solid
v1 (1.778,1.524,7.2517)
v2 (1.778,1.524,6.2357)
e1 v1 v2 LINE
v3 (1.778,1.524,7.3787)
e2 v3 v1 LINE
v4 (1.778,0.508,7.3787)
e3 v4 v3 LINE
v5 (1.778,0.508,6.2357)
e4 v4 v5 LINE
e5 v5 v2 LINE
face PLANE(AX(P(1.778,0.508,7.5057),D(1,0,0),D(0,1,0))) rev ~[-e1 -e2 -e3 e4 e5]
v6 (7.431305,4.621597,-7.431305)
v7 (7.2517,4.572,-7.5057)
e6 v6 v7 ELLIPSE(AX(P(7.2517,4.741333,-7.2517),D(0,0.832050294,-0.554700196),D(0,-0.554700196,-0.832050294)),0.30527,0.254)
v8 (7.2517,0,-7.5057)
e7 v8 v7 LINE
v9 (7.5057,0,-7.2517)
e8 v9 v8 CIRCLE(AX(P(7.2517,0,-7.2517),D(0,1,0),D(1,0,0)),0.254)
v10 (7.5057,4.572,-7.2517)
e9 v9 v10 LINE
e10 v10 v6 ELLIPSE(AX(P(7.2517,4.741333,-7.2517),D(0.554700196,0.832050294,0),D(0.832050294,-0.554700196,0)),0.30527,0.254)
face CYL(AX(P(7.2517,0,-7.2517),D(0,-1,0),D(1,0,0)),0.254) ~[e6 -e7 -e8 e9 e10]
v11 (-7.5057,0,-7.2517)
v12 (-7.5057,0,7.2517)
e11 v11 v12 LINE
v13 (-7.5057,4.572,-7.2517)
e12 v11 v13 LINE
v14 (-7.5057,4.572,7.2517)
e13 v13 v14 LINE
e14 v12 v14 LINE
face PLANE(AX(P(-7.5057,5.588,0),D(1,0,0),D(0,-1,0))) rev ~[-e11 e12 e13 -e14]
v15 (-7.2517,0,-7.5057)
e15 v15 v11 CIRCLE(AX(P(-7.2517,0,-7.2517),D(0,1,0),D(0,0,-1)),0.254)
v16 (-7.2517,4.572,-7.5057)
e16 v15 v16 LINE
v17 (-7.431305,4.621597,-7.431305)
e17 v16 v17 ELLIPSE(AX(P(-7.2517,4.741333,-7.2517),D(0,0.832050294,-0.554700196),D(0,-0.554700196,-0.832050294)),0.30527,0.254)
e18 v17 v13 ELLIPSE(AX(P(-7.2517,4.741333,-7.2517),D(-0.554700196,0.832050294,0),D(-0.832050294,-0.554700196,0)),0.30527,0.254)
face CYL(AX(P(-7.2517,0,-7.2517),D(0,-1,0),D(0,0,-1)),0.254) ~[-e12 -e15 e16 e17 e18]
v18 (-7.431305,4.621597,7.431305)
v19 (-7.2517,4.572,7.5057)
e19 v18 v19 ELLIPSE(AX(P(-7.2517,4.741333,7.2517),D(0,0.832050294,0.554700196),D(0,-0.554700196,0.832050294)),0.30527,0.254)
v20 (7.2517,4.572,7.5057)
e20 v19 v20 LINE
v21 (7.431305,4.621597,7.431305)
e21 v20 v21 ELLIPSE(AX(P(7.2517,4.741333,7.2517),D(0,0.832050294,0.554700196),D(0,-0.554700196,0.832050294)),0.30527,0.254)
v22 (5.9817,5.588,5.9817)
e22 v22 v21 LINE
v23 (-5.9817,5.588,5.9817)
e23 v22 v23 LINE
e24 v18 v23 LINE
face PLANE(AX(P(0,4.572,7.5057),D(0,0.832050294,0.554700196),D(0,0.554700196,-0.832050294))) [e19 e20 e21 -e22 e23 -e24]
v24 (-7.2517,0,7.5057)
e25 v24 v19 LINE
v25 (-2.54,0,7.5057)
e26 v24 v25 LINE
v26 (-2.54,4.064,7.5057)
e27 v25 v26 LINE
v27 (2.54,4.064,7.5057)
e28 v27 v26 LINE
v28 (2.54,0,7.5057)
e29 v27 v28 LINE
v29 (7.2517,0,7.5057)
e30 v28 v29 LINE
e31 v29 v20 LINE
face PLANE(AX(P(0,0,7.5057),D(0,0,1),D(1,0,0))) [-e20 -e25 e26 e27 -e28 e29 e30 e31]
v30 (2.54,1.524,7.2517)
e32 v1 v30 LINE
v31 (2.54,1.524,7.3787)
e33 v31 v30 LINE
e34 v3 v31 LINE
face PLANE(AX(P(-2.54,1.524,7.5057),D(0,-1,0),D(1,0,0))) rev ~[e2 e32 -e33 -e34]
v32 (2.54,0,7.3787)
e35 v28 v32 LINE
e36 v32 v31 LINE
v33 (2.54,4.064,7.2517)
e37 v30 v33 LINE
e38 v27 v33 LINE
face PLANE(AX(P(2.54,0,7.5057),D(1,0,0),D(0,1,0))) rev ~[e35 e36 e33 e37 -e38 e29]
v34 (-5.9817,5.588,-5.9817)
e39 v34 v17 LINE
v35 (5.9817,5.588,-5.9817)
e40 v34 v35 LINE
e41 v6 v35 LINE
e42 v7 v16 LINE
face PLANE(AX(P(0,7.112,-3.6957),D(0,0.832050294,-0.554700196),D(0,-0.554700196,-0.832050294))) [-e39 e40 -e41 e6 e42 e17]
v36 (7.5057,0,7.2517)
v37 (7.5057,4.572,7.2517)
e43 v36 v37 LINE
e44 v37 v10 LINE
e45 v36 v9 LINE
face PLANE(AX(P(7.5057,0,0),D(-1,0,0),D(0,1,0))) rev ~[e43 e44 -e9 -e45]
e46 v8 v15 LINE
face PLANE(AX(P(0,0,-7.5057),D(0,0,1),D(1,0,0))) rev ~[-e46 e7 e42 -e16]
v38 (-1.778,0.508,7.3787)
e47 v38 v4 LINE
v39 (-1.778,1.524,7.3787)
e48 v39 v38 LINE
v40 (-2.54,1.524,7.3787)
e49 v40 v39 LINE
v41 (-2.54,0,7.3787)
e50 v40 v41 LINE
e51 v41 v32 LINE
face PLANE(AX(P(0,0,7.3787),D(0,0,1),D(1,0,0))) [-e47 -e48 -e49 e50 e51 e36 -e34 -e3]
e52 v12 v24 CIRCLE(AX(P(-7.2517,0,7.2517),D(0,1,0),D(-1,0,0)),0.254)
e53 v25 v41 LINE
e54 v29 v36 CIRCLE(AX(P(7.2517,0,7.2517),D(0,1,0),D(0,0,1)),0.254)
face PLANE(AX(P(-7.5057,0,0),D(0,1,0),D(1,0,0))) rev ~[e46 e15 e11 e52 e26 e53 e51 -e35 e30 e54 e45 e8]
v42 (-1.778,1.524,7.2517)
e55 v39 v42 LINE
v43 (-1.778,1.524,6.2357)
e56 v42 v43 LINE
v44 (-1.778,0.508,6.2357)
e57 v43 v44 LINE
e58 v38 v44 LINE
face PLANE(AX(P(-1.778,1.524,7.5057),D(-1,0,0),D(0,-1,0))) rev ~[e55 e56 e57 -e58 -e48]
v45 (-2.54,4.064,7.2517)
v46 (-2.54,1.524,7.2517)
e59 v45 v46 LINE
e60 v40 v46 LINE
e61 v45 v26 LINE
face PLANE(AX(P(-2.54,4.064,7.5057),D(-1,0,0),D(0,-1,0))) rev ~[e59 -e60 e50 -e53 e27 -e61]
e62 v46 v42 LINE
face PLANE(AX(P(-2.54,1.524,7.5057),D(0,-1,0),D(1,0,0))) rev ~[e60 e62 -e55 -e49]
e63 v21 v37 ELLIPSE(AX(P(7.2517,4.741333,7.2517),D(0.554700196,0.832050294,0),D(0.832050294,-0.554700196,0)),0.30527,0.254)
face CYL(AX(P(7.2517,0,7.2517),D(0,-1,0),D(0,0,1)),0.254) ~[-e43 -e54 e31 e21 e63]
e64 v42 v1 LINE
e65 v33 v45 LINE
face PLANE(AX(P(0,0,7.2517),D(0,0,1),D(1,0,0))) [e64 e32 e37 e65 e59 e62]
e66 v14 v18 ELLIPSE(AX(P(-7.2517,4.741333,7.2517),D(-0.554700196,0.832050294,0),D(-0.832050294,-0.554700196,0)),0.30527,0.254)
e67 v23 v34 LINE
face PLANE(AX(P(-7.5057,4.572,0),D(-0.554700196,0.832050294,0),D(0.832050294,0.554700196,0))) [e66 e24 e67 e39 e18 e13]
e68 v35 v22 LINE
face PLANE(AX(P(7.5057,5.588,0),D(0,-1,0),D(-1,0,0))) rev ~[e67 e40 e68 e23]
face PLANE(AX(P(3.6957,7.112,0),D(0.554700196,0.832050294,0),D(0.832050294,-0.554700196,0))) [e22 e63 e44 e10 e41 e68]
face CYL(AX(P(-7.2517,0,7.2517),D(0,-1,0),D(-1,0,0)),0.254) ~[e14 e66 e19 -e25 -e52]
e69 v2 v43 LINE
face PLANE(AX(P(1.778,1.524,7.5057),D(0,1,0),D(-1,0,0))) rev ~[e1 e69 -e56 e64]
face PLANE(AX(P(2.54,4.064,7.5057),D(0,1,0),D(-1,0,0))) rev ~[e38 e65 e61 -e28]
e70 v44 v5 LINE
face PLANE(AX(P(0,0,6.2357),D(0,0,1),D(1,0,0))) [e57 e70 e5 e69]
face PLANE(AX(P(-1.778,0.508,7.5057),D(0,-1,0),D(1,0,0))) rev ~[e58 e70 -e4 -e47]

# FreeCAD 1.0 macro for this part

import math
import FreeCAD as App
import Part
import Sketcher

V = App.Vector
Q = App.Units.Quantity


def add_polygon(sketch, points):
    """Adds a closed chain of lines whose ends are joined by coincident constraints."""
    first, n = sketch.GeometryCount, len(points)
    for a, b in zip(points, points[1:] + points[:1]):
        sketch.addGeometry(Part.LineSegment(App.Vector(*a, 0), App.Vector(*b, 0)), False)
    for i in range(n):
        sketch.addConstraint(Sketcher.Constraint("Coincident", first + i, 2, first + (i + 1) % n, 1))

doc = App.newDocument("Part")
body = doc.addObject("PartDesign::Body", "Body")

# Sketch on XY plane
sketch1 = body.newObject("Sketcher::SketchObject", "Sketch")
sketch1.AttachmentSupport = (doc.getObject("XY_Plane"), [""])
sketch1.MapMode = "FlatFace"
add_polygon(sketch1, [(-8, 6), (-8, 0), (8, 0), (8, 6)])  # lines 0-3
sketch1.addConstraint([
    Sketcher.Constraint("Vertical", 0),
    Sketcher.Constraint("Horizontal", 1),
    Sketcher.Constraint("Vertical", 2),
    Sketcher.Constraint("Horizontal", 3),
    Sketcher.Constraint("Symmetric", 0, 2, 1, 2, -1, 1),
    Sketcher.Constraint("DistanceY", 0, 2, 0, 1, Q("0.22 in")),
    Sketcher.Constraint("DistanceX", 1, 1, 1, 2, Q("0.591 in")),
])
pad1 = body.newObject("PartDesign::Pad", "Pad")
pad1.Profile = sketch1
pad1.Length = Q("0.591 in")
pad1.Midplane = True

# Sketch on XZ plane
sketch2 = body.newObject("Sketcher::SketchObject", "Sketch001")
sketch2.AttachmentSupport = (doc.getObject("XZ_Plane"), [""])
sketch2.MapMode = "FlatFace"
add_polygon(sketch2, [(-8.89, -8.89), (-8.89, 8.89), (8.89, 8.89), (8.89, -8.89)])  # lines 0-3
sketch2.addGeometry(Part.LineSegment(V(-7.51, 7.25, 0), V(-7.51, -7.25, 0)), False)  # 4
sketch2.addGeometry(Part.ArcOfCircle(Part.Circle(V(-7.25, -7.25, 0), V(0, 0, 1), 0.25), math.radians(180), math.radians(270)), False)  # 5
sketch2.addGeometry(Part.LineSegment(V(-7.25, -7.51, 0), V(7.25, -7.51, 0)), False)  # 6
sketch2.addGeometry(Part.ArcOfCircle(Part.Circle(V(7.25, -7.25, 0), V(0, 0, 1), 0.25), math.radians(-90), math.radians(0)), False)  # 7
sketch2.addGeometry(Part.LineSegment(V(7.51, -7.25, 0), V(7.51, 7.25, 0)), False)  # 8
sketch2.addGeometry(Part.ArcOfCircle(Part.Circle(V(7.25, 7.25, 0), V(0, 0, 1), 0.25), math.radians(0), math.radians(90)), False)  # 9
sketch2.addGeometry(Part.LineSegment(V(7.25, 7.51, 0), V(-7.25, 7.51, 0)), False)  # 10
sketch2.addGeometry(Part.ArcOfCircle(Part.Circle(V(-7.25, 7.25, 0), V(0, 0, 1), 0.25), math.radians(90), math.radians(180)), False)  # 11
sketch2.addConstraint([
    Sketcher.Constraint("Tangent", 4, 2, 5, 1),
    Sketcher.Constraint("Tangent", 5, 2, 6, 1),
    Sketcher.Constraint("Tangent", 6, 2, 7, 1),
    Sketcher.Constraint("Tangent", 7, 2, 8, 1),
    Sketcher.Constraint("Tangent", 8, 2, 9, 1),
    Sketcher.Constraint("Tangent", 9, 2, 10, 1),
    Sketcher.Constraint("Tangent", 10, 2, 11, 1),
    Sketcher.Constraint("Tangent", 11, 2, 4, 1),
    Sketcher.Constraint("Vertical", 0),
    Sketcher.Constraint("Horizontal", 1),
    Sketcher.Constraint("Vertical", 2),
    Sketcher.Constraint("Horizontal", 3),
    Sketcher.Constraint("Vertical", 4),
    Sketcher.Constraint("Horizontal", 6),
    Sketcher.Constraint("Vertical", 8),
    Sketcher.Constraint("Horizontal", 10),
    Sketcher.Constraint("Equal", 5, 7),
    Sketcher.Constraint("Equal", 7, 9),
    Sketcher.Constraint("Equal", 9, 11),
    Sketcher.Constraint("Symmetric", 5, 3, 9, 3, -1, 1),
    Sketcher.Constraint("Symmetric", 0, 2, 2, 2, -1, 1),
    Sketcher.Constraint("Equal", 3, 0),
    Sketcher.Constraint("Equal", 10, 4),
    Sketcher.Constraint("Radius", 5, Q("0.01 in")),
    Sketcher.Constraint("DistanceX", 1, 1, 1, 2, Q("0.7 in")),
    Sketcher.Constraint("DistanceX", 6, 1, 6, 2, Q("0.571 in")),
])
pocket1 = body.newObject("PartDesign::Pocket", "Pocket")
pocket1.Profile = sketch2
pocket1.Length = Q("0.3 in")

# Sketch on XY plane
sketch3 = body.newObject("Sketcher::SketchObject", "Sketch002")
sketch3.AttachmentSupport = (doc.getObject("XY_Plane"), [""])
sketch3.MapMode = "FlatFace"
add_polygon(sketch3, [(7.5, 8.1), (-7.5, 8.1), (-7.5, 4.6), (-3.7, 7.1), (3.7, 7.1), (7.5, 4.6)])  # lines 0-5
sketch3.addConstraint([
    Sketcher.Constraint("Horizontal", 0),
    Sketcher.Constraint("Vertical", 1),
    Sketcher.Constraint("Horizontal", 3),
    Sketcher.Constraint("Vertical", 5),
    Sketcher.Constraint("Symmetric", 1, 2, 4, 2, -2),
    Sketcher.Constraint("Equal", 2, 4),
    Sketcher.Constraint("DistanceY", 1, 2, 1, 1, Q("0.14 in")),
    Sketcher.Constraint("DistanceY", 1, 2, 2, 2, Q("0.1 in")),
    Sketcher.Constraint("DistanceX", 0, 2, 0, 1, Q("0.591 in")),
    Sketcher.Constraint("DistanceX", 3, 1, 3, 2, Q("0.291 in")),
    Sketcher.Constraint("DistanceY", -1, 1, 0, 2, Q("0.32 in")),
])
pocket2 = body.newObject("PartDesign::Pocket", "Pocket001")
pocket2.Profile = sketch3
pocket2.Length = Q("0.6 in")
pocket2.Midplane = True

# Sketch on YZ plane
sketch4 = body.newObject("Sketcher::SketchObject", "Sketch003")
sketch4.AttachmentSupport = (doc.getObject("YZ_Plane"), [""])
sketch4.MapMode = "FlatFace"
add_polygon(sketch4, [(8.1, -7.5), (8.1, 7.5), (4.6, 7.5), (7.1, 3.7), (7.1, -3.7), (4.6, -7.5)])  # lines 0-5
sketch4.addConstraint([
    Sketcher.Constraint("Vertical", 0),
    Sketcher.Constraint("Horizontal", 1),
    Sketcher.Constraint("Vertical", 3),
    Sketcher.Constraint("Horizontal", 5),
    Sketcher.Constraint("Symmetric", 1, 2, 4, 2, -1),
    Sketcher.Constraint("Equal", 2, 4),
    Sketcher.Constraint("DistanceX", 1, 2, 1, 1, Q("0.14 in")),
    Sketcher.Constraint("DistanceX", 1, 2, 2, 2, Q("0.1 in")),
    Sketcher.Constraint("DistanceY", 0, 1, 0, 2, Q("0.591 in")),
    Sketcher.Constraint("DistanceY", 3, 2, 3, 1, Q("0.291 in")),
    Sketcher.Constraint("DistanceX", -1, 1, 0, 2, Q("0.32 in")),
])
pocket3 = body.newObject("PartDesign::Pocket", "Pocket002")
pocket3.Profile = sketch4
pocket3.Length = Q("0.6 in")
pocket3.Midplane = True

# Sketch on XY plane
sketch5 = body.newObject("Sketcher::SketchObject", "Sketch004")
sketch5.AttachmentSupport = (doc.getObject("XY_Plane"), [""])
sketch5.MapMode = "FlatFace"
sketch5.AttachmentOffset = App.Placement(V(0, 0, 0.2955 * 25.4), App.Rotation())
add_polygon(sketch5, [(-2.5, 4.1), (-2.5, 0), (2.5, 0), (2.5, 4.1)])  # lines 0-3
sketch5.addConstraint([
    Sketcher.Constraint("Vertical", 0),
    Sketcher.Constraint("Horizontal", 1),
    Sketcher.Constraint("Vertical", 2),
    Sketcher.Constraint("Horizontal", 3),
    Sketcher.Constraint("Symmetric", 0, 2, 1, 2, -1, 1),
    Sketcher.Constraint("DistanceX", 1, 1, 1, 2, Q("0.2 in")),
    Sketcher.Constraint("DistanceY", 0, 2, 0, 1, Q("0.16 in")),
])
pocket4 = body.newObject("PartDesign::Pocket", "Pocket003")
pocket4.Profile = sketch5
pocket4.Length = Q("0.005 in")

# Sketch on XY plane
sketch6 = body.newObject("Sketcher::SketchObject", "Sketch005")
sketch6.AttachmentSupport = (doc.getObject("XY_Plane"), [""])
sketch6.MapMode = "FlatFace"
sketch6.AttachmentOffset = App.Placement(V(0, 0, 0.2955 * 25.4), App.Rotation())
add_polygon(sketch6, [(-2.5, 4.1), (-2.5, 1.5), (2.5, 1.5), (2.5, 4.1)])  # lines 0-3
sketch6.addConstraint([
    Sketcher.Constraint("Vertical", 0),
    Sketcher.Constraint("Horizontal", 1),
    Sketcher.Constraint("Vertical", 2),
    Sketcher.Constraint("Horizontal", 3),
    Sketcher.Constraint("DistanceX", 1, 1, 1, 2, Q("0.2 in")),
    Sketcher.Constraint("DistanceY", 0, 2, 0, 1, Q("0.1 in")),
    Sketcher.Constraint("DistanceX", 0, 2, -1, 1, Q("0.1 in")),
    Sketcher.Constraint("DistanceY", -1, 1, 0, 2, Q("0.06 in")),
])
pocket5 = body.newObject("PartDesign::Pocket", "Pocket004")
pocket5.Profile = sketch6
pocket5.Length = Q("0.01 in")

# Sketch on XY plane
sketch7 = body.newObject("Sketcher::SketchObject", "Sketch006")
sketch7.AttachmentSupport = (doc.getObject("XY_Plane"), [""])
sketch7.MapMode = "FlatFace"
sketch7.AttachmentOffset = App.Placement(V(0, 0, 0.2955 * 25.4), App.Rotation())
add_polygon(sketch7, [(-1.8, 1.5), (-1.8, 0.5), (1.8, 0.5), (1.8, 1.5)])  # lines 0-3
sketch7.addConstraint([
    Sketcher.Constraint("Vertical", 0),
    Sketcher.Constraint("Horizontal", 1),
    Sketcher.Constraint("Vertical", 2),
    Sketcher.Constraint("Horizontal", 3),
    Sketcher.Constraint("DistanceX", 1, 1, 1, 2, Q("0.14 in")),
    Sketcher.Constraint("DistanceY", 0, 2, 0, 1, Q("0.04 in")),
    Sketcher.Constraint("DistanceX", 0, 2, -1, 1, Q("0.07 in")),
    Sketcher.Constraint("DistanceY", -1, 1, 0, 2, Q("0.02 in")),
])
pocket6 = body.newObject("PartDesign::Pocket", "Pocket005")
pocket6.Profile = sketch7
pocket6.Length = Q("0.05 in")

doc.recompute()
